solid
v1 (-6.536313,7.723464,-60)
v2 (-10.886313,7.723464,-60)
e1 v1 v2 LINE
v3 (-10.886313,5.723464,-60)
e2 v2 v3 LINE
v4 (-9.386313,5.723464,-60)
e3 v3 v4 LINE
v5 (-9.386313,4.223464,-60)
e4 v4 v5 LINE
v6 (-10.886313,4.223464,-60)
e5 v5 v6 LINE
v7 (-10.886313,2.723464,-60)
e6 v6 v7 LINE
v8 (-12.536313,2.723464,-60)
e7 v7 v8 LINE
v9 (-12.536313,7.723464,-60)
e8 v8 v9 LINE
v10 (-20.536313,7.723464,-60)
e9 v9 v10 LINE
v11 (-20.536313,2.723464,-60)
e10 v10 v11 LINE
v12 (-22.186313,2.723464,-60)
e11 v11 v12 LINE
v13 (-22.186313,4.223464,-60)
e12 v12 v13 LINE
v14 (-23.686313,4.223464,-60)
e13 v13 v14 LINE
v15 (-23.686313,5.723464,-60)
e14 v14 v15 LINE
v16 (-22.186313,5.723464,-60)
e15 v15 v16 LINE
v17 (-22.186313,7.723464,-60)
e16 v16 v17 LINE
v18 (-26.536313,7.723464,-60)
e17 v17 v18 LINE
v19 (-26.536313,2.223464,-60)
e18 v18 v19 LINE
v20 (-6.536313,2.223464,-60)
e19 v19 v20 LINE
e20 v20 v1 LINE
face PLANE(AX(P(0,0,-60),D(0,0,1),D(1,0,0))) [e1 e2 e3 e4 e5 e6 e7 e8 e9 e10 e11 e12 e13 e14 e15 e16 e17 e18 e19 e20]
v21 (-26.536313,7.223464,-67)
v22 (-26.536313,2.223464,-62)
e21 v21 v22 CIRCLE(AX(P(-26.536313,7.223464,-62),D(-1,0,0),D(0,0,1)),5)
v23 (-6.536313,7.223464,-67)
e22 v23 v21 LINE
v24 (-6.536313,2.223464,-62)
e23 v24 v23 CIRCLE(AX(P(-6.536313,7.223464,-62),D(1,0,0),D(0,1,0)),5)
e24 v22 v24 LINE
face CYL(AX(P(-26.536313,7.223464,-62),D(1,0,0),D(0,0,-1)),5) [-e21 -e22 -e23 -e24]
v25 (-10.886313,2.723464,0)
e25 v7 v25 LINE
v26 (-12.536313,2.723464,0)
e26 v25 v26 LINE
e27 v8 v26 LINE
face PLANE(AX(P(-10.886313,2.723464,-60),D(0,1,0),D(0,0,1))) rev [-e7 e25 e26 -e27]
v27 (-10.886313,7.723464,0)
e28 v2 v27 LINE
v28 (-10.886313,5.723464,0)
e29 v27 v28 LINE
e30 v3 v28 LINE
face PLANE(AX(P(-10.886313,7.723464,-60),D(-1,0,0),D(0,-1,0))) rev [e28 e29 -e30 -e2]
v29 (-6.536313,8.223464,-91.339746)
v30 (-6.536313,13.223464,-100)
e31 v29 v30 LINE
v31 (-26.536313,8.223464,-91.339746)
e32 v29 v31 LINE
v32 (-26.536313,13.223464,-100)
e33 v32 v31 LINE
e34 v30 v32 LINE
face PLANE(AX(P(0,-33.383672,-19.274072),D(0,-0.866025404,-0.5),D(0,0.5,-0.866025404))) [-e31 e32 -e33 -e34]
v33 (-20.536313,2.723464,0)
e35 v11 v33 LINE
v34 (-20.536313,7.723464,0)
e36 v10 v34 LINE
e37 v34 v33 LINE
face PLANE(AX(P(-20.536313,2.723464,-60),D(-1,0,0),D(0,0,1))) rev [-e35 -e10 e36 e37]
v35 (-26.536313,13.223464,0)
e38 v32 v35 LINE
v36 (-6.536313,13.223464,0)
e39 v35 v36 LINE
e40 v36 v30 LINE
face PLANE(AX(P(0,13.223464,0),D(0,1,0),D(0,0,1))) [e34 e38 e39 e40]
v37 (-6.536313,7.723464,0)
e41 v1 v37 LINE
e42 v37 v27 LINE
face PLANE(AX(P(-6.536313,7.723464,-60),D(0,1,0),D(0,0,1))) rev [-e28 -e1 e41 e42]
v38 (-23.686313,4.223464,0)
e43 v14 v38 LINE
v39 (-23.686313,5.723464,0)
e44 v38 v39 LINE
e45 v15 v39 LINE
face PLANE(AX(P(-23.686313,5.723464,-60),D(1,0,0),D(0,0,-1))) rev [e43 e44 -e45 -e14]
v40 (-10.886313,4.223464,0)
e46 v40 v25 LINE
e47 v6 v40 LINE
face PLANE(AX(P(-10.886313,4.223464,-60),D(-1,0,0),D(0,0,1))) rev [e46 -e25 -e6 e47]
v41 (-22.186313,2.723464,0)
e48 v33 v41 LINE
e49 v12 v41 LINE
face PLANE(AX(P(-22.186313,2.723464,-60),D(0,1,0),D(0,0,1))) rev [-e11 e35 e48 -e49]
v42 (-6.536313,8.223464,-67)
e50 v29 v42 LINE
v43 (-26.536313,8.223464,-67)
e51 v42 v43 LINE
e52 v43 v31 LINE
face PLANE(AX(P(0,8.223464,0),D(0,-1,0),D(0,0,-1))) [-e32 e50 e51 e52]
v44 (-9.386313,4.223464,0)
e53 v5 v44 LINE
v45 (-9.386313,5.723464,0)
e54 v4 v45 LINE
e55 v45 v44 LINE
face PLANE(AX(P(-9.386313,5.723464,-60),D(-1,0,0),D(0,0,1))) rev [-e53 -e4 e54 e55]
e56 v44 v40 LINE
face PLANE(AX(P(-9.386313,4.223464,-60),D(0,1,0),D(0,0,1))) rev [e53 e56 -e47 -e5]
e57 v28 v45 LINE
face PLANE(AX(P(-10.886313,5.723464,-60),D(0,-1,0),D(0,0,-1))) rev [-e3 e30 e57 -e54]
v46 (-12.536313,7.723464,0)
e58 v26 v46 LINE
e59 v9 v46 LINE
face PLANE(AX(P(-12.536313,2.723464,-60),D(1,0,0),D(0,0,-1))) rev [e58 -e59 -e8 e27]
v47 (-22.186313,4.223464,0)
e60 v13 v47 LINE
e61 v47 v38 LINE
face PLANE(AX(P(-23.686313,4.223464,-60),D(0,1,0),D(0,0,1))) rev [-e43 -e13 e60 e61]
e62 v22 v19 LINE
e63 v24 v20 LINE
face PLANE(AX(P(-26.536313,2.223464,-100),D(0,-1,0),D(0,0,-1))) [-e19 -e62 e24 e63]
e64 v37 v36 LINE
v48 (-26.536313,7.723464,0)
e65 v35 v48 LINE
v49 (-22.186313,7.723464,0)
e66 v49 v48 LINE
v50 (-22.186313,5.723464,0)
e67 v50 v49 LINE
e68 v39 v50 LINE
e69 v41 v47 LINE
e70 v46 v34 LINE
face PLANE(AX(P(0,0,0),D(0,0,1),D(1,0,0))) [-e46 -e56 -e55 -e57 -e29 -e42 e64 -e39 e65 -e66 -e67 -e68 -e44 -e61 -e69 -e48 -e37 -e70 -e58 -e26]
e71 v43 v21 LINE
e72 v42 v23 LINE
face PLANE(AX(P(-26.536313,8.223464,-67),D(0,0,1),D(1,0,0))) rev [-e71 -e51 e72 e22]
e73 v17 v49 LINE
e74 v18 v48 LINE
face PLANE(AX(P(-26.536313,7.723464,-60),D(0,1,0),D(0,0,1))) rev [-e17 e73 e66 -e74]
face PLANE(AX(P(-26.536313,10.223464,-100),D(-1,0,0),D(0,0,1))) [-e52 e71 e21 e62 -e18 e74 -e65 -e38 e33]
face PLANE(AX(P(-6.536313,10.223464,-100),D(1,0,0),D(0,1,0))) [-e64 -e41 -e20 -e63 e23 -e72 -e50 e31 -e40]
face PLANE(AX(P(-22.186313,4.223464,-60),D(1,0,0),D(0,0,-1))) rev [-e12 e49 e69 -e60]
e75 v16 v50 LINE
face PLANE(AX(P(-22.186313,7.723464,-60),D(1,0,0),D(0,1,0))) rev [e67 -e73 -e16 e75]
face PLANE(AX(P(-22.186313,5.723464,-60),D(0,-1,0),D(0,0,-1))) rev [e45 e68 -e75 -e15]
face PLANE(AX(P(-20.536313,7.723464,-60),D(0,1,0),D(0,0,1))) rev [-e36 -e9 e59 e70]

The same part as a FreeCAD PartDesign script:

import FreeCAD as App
import Part
import Sketcher
Q = App.Units.Quantity


def edges_at(feature, points):
    """Names of the edges that pass closest to the given points."""
    edges = feature.Shape.Edges
    near = lambda p: min(range(len(edges)), key=lambda i: edges[i].distToShape(Part.Vertex(*p))[0])
    return sorted({f"Edge{near(p) + 1}" for p in points})

doc = App.newDocument("Part")
params = doc.addObject("Spreadsheet::Sheet", "Params")
for row, (alias, value) in enumerate([
    ("sketch1_width", "20 mm"),
    ("sketch1_height", "8 mm"),
    ("pad1_length", "100 mm"),
    ("sketch2_width", "20 mm"),
    ("sketch2_width2", "8 mm"),
    ("sketch2_height", "2 mm"),
    ("sketch2_height2", "5 mm"),
    ("sketch2_height3", "5.5 mm"),
    ("pocket1_length", "60 mm"),
    ("sketch3_width", "20 mm"),
    ("sketch3_height", "100 mm"),
    ("pad2_length", "3 mm"),
    ("pocket2_length", "30 mm"),
    ("sketch5_width", "20 mm"),
    ("sketch5_height", "30 mm"),
    ("pocket3_length", "6 mm"),
    ("fillet_radius", "5 mm"),
], start=1):
    params.set(f"A{row}", alias)
    params.set(f"B{row}", "=" + value)
    params.setAlias(f"B{row}", alias)

body = doc.addObject("PartDesign::Body", "Body")

sketch1 = body.newObject("Sketcher::SketchObject", "Sketch")
sketch1.AttachmentSupport = (doc.getObject("XY_Plane"), [""])
sketch1.MapMode = "FlatFace"
sketch1.addGeometry([
    Part.LineSegment(App.Vector(-27, 10, 0), App.Vector(-27, 2, 0)),
    Part.LineSegment(App.Vector(-27, 2, 0), App.Vector(-7, 2, 0)),
    Part.LineSegment(App.Vector(-7, 2, 0), App.Vector(-7, 10, 0)),
    Part.LineSegment(App.Vector(-7, 10, 0), App.Vector(-27, 10, 0)),
], False)
sketch1.addConstraint([
    Sketcher.Constraint("Coincident", 0, 2, 1, 1),
    Sketcher.Constraint("Coincident", 1, 2, 2, 1),
    Sketcher.Constraint("Coincident", 2, 2, 3, 1),
    Sketcher.Constraint("Coincident", 3, 2, 0, 1),
    Sketcher.Constraint("Vertical", 0),
    Sketcher.Constraint("Horizontal", 1),
    Sketcher.Constraint("Vertical", 2),
    Sketcher.Constraint("Horizontal", 3),
    Sketcher.Constraint("DistanceX", 1, 1, 1, 2, Q("20 mm")),
    Sketcher.Constraint("DistanceY", 0, 2, 0, 1, Q("8 mm")),
    Sketcher.Constraint("DistanceX", 0, 2, -1, 1, Q("26.536313 mm")),
    Sketcher.Constraint("DistanceY", -1, 1, 0, 2, Q("2.223464 mm")),
])
sketch1.setExpression("Constraints[8]", "Params.sketch1_width")
sketch1.setExpression("Constraints[9]", "Params.sketch1_height")
pad1 = body.newObject("PartDesign::Pad", "Pad")
pad1.Profile = sketch1
pad1.setExpression("Length", "Params.pad1_length")
pad1.Reversed = True

sketch2 = body.newObject("Sketcher::SketchObject", "Sketch001")
sketch2.AttachmentSupport = (doc.getObject("XY_Plane"), [""])
sketch2.MapMode = "FlatFace"
sketch2.addGeometry([
    Part.LineSegment(App.Vector(-22.2, 7.7, 0), App.Vector(-26.5, 7.7, 0)),
    Part.LineSegment(App.Vector(-26.5, 7.7, 0), App.Vector(-26.5, 2.2, 0)),
    Part.LineSegment(App.Vector(-26.5, 2.2, 0), App.Vector(-6.5, 2.2, 0)),
    Part.LineSegment(App.Vector(-6.5, 2.2, 0), App.Vector(-6.5, 7.7, 0)),
    Part.LineSegment(App.Vector(-6.5, 7.7, 0), App.Vector(-10.9, 7.7, 0)),
    Part.LineSegment(App.Vector(-10.9, 7.7, 0), App.Vector(-10.9, 5.7, 0)),
    Part.LineSegment(App.Vector(-10.9, 5.7, 0), App.Vector(-9.4, 5.7, 0)),
    Part.LineSegment(App.Vector(-9.4, 5.7, 0), App.Vector(-9.4, 4.2, 0)),
    Part.LineSegment(App.Vector(-9.4, 4.2, 0), App.Vector(-10.9, 4.2, 0)),
    Part.LineSegment(App.Vector(-10.9, 4.2, 0), App.Vector(-10.9, 2.7, 0)),
    Part.LineSegment(App.Vector(-10.9, 2.7, 0), App.Vector(-12.5, 2.7, 0)),
    Part.LineSegment(App.Vector(-12.5, 2.7, 0), App.Vector(-12.5, 7.7, 0)),
    Part.LineSegment(App.Vector(-12.5, 7.7, 0), App.Vector(-20.5, 7.7, 0)),
    Part.LineSegment(App.Vector(-20.5, 7.7, 0), App.Vector(-20.5, 2.7, 0)),
    Part.LineSegment(App.Vector(-20.5, 2.7, 0), App.Vector(-22.2, 2.7, 0)),
    Part.LineSegment(App.Vector(-22.2, 2.7, 0), App.Vector(-22.2, 4.2, 0)),
    Part.LineSegment(App.Vector(-22.2, 4.2, 0), App.Vector(-23.7, 4.2, 0)),
    Part.LineSegment(App.Vector(-23.7, 4.2, 0), App.Vector(-23.7, 5.7, 0)),
    Part.LineSegment(App.Vector(-23.7, 5.7, 0), App.Vector(-22.2, 5.7, 0)),
    Part.LineSegment(App.Vector(-22.2, 5.7, 0), App.Vector(-22.2, 7.7, 0)),
], False)
sketch2.addConstraint([
    Sketcher.Constraint("Coincident", 0, 2, 1, 1),
    Sketcher.Constraint("Coincident", 1, 2, 2, 1),
    Sketcher.Constraint("Coincident", 2, 2, 3, 1),
    Sketcher.Constraint("Coincident", 3, 2, 4, 1),
    Sketcher.Constraint("Coincident", 4, 2, 5, 1),
    Sketcher.Constraint("Coincident", 5, 2, 6, 1),
    Sketcher.Constraint("Coincident", 6, 2, 7, 1),
    Sketcher.Constraint("Coincident", 7, 2, 8, 1),
    Sketcher.Constraint("Coincident", 8, 2, 9, 1),
    Sketcher.Constraint("Coincident", 9, 2, 10, 1),
    Sketcher.Constraint("Coincident", 10, 2, 11, 1),
    Sketcher.Constraint("Coincident", 11, 2, 12, 1),
    Sketcher.Constraint("Coincident", 12, 2, 13, 1),
    Sketcher.Constraint("Coincident", 13, 2, 14, 1),
    Sketcher.Constraint("Coincident", 14, 2, 15, 1),
    Sketcher.Constraint("Coincident", 15, 2, 16, 1),
    Sketcher.Constraint("Coincident", 16, 2, 17, 1),
    Sketcher.Constraint("Coincident", 17, 2, 18, 1),
    Sketcher.Constraint("Coincident", 18, 2, 19, 1),
    Sketcher.Constraint("Coincident", 19, 2, 0, 1),
    Sketcher.Constraint("Horizontal", 0),
    Sketcher.Constraint("Vertical", 1),
    Sketcher.Constraint("Horizontal", 2),
    Sketcher.Constraint("Vertical", 3),
    Sketcher.Constraint("Horizontal", 4),
    Sketcher.Constraint("Vertical", 5),
    Sketcher.Constraint("Horizontal", 6),
    Sketcher.Constraint("Vertical", 7),
    Sketcher.Constraint("Horizontal", 8),
    Sketcher.Constraint("Vertical", 9),
    Sketcher.Constraint("Horizontal", 10),
    Sketcher.Constraint("Vertical", 11),
    Sketcher.Constraint("Horizontal", 12),
    Sketcher.Constraint("Vertical", 13),
    Sketcher.Constraint("Horizontal", 14),
    Sketcher.Constraint("Vertical", 15),
    Sketcher.Constraint("Horizontal", 16),
    Sketcher.Constraint("Vertical", 17),
    Sketcher.Constraint("Horizontal", 18),
    Sketcher.Constraint("Vertical", 19),
    Sketcher.Constraint("Horizontal", 0, 2, 3, 2),
    Sketcher.Constraint("Horizontal", 4, 2, 11, 2),
    Sketcher.Constraint("Horizontal", 10, 2, 13, 2),
    Sketcher.Constraint("Horizontal", 8, 2, 15, 2),
    Sketcher.Constraint("Horizontal", 6, 2, 17, 2),
    Sketcher.Constraint("Vertical", 5, 2, 8, 2),
    Sketcher.Constraint("Vertical", 15, 2, 18, 2),
    Sketcher.Constraint("Equal", 0, 4),
    Sketcher.Constraint("Equal", 10, 14),
    Sketcher.Constraint("Equal", 8, 16),
    Sketcher.Constraint("Equal", 18, 7),
    Sketcher.Constraint("Equal", 7, 9),
    Sketcher.Constraint("DistanceX", 2, 1, 2, 2, Q("20 mm")),
    Sketcher.Constraint("DistanceX", 12, 2, 12, 1, Q("8 mm")),
    Sketcher.Constraint("DistanceY", 5, 2, 5, 1, Q("2 mm")),
    Sketcher.Constraint("DistanceY", 11, 1, 11, 2, Q("5 mm")),
    Sketcher.Constraint("DistanceY", 1, 2, 1, 1, Q("5.5 mm")),
    Sketcher.Constraint("DistanceX", 0, 2, 0, 1, Q("4.35 mm")),
    Sketcher.Constraint("DistanceX", 0, 2, -1, 1, Q("26.536313 mm")),
    Sketcher.Constraint("DistanceY", -1, 1, 0, 2, Q("7.723464 mm")),
])
sketch2.setExpression("Constraints[52]", "Params.sketch2_width")
sketch2.setExpression("Constraints[53]", "Params.sketch2_width2")
sketch2.setExpression("Constraints[54]", "Params.sketch2_height")
sketch2.setExpression("Constraints[55]", "Params.sketch2_height2")
sketch2.setExpression("Constraints[56]", "Params.sketch2_height3")
pocket1 = body.newObject("PartDesign::Pocket", "Pocket")
pocket1.Profile = sketch2
pocket1.setExpression("Length", "Params.pocket1_length")

sketch3 = body.newObject("Sketcher::SketchObject", "Sketch002")
sketch3.AttachmentSupport = (doc.getObject("XZ_Plane"), [""])
sketch3.MapMode = "FlatFace"
sketch3.AttachmentOffset = App.Placement(App.Vector(0, 0, -10.223464), App.Rotation())
sketch3.addGeometry([
    Part.LineSegment(App.Vector(-27, -100, 0), App.Vector(-27, 0, 0)),
    Part.LineSegment(App.Vector(-27, 0, 0), App.Vector(-7, 0, 0)),
    Part.LineSegment(App.Vector(-7, 0, 0), App.Vector(-7, -100, 0)),
    Part.LineSegment(App.Vector(-7, -100, 0), App.Vector(-27, -100, 0)),
], False)
sketch3.addConstraint([
    Sketcher.Constraint("Coincident", 0, 2, 1, 1),
    Sketcher.Constraint("Coincident", 1, 2, 2, 1),
    Sketcher.Constraint("Coincident", 2, 2, 3, 1),
    Sketcher.Constraint("Coincident", 3, 2, 0, 1),
    Sketcher.Constraint("Vertical", 0),
    Sketcher.Constraint("Horizontal", 1),
    Sketcher.Constraint("Vertical", 2),
    Sketcher.Constraint("Horizontal", 3),
    Sketcher.Constraint("PointOnObject", 0, 2, -1),
    Sketcher.Constraint("DistanceX", 1, 1, 1, 2, Q("20 mm")),
    Sketcher.Constraint("DistanceY", 0, 1, 0, 2, Q("100 mm")),
    Sketcher.Constraint("DistanceX", 0, 2, -1, 1, Q("26.536313 mm")),
])
sketch3.setExpression("Constraints[9]", "Params.sketch3_width")
sketch3.setExpression("Constraints[10]", "Params.sketch3_height")
pad2 = body.newObject("PartDesign::Pad", "Pad001")
pad2.Profile = sketch3
pad2.setExpression("Length", "Params.pad2_length")
pad2.Reversed = True

sketch4 = body.newObject("Sketcher::SketchObject", "Sketch003")
sketch4.Placement = App.Placement(App.Vector(0, -33.383672, -19.274072), App.Rotation(App.Vector(-1, 0, 0), App.Vector(0, -0.5, 0.866025404), App.Vector(0, 0.866025404, 0.5), "ZXY"))
sketch4.addGeometry([
    Part.LineSegment(App.Vector(-7, -68, 0), App.Vector(-7, -132, 0)),
    Part.LineSegment(App.Vector(-7, -132, 0), App.Vector(40, -132, 0)),
    Part.LineSegment(App.Vector(40, -132, 0), App.Vector(40, -68, 0)),
    Part.LineSegment(App.Vector(40, -68, 0), App.Vector(-7, -68, 0)),
], False)
sketch4.addConstraint([
    Sketcher.Constraint("Coincident", 0, 2, 1, 1),
    Sketcher.Constraint("Coincident", 1, 2, 2, 1),
    Sketcher.Constraint("Coincident", 2, 2, 3, 1),
    Sketcher.Constraint("Coincident", 3, 2, 0, 1),
    Sketcher.Constraint("Vertical", 0),
    Sketcher.Constraint("Horizontal", 1),
    Sketcher.Constraint("Vertical", 2),
    Sketcher.Constraint("Horizontal", 3),
    Sketcher.Constraint("DistanceY", 0, 2, 0, 1, Q("63.8421 mm")),
    Sketcher.Constraint("DistanceX", 1, 1, 1, 2, Q("46.736094 mm")),
    Sketcher.Constraint("DistanceX", 0, 2, -1, 1, Q("7.150459 mm")),
    Sketcher.Constraint("DistanceY", 0, 2, -1, 1, Q("132.242133 mm")),
])
pocket2 = body.newObject("PartDesign::Pocket", "Pocket001")
pocket2.Profile = sketch4
pocket2.setExpression("Length", "Params.pocket2_length")

sketch5 = body.newObject("Sketcher::SketchObject", "Sketch004")
sketch5.AttachmentSupport = (doc.getObject("XZ_Plane"), [""])
sketch5.MapMode = "FlatFace"
sketch5.AttachmentOffset = App.Placement(App.Vector(0, 0, -2.223464), App.Rotation())
sketch5.addGeometry([
    Part.LineSegment(App.Vector(-27, -67, 0), App.Vector(-27, -97, 0)),
    Part.LineSegment(App.Vector(-27, -97, 0), App.Vector(-7, -97, 0)),
    Part.LineSegment(App.Vector(-7, -97, 0), App.Vector(-7, -67, 0)),
    Part.LineSegment(App.Vector(-7, -67, 0), App.Vector(-27, -67, 0)),
], False)
sketch5.addConstraint([
    Sketcher.Constraint("Coincident", 0, 2, 1, 1),
    Sketcher.Constraint("Coincident", 1, 2, 2, 1),
    Sketcher.Constraint("Coincident", 2, 2, 3, 1),
    Sketcher.Constraint("Coincident", 3, 2, 0, 1),
    Sketcher.Constraint("Vertical", 0),
    Sketcher.Constraint("Horizontal", 1),
    Sketcher.Constraint("Vertical", 2),
    Sketcher.Constraint("Horizontal", 3),
    Sketcher.Constraint("DistanceX", 1, 1, 1, 2, Q("20 mm")),
    Sketcher.Constraint("DistanceY", 0, 2, 0, 1, Q("30 mm")),
    Sketcher.Constraint("DistanceY", 0, 2, -1, 1, Q("97 mm")),
    Sketcher.Constraint("DistanceX", 0, 2, -1, 1, Q("26.536313 mm")),
])
sketch5.setExpression("Constraints[8]", "Params.sketch5_width")
sketch5.setExpression("Constraints[9]", "Params.sketch5_height")
pocket3 = body.newObject("PartDesign::Pocket", "Pocket002")
pocket3.Profile = sketch5
pocket3.setExpression("Length", "Params.pocket3_length")
doc.recompute()

fillet = body.newObject("PartDesign::Fillet", "Fillet")
fillet.Base = (pocket3, edges_at(pocket3, [(-16.536, 2.223, -67)]))
fillet.setExpression("Radius", "Params.fillet_radius")

doc.recompute()
